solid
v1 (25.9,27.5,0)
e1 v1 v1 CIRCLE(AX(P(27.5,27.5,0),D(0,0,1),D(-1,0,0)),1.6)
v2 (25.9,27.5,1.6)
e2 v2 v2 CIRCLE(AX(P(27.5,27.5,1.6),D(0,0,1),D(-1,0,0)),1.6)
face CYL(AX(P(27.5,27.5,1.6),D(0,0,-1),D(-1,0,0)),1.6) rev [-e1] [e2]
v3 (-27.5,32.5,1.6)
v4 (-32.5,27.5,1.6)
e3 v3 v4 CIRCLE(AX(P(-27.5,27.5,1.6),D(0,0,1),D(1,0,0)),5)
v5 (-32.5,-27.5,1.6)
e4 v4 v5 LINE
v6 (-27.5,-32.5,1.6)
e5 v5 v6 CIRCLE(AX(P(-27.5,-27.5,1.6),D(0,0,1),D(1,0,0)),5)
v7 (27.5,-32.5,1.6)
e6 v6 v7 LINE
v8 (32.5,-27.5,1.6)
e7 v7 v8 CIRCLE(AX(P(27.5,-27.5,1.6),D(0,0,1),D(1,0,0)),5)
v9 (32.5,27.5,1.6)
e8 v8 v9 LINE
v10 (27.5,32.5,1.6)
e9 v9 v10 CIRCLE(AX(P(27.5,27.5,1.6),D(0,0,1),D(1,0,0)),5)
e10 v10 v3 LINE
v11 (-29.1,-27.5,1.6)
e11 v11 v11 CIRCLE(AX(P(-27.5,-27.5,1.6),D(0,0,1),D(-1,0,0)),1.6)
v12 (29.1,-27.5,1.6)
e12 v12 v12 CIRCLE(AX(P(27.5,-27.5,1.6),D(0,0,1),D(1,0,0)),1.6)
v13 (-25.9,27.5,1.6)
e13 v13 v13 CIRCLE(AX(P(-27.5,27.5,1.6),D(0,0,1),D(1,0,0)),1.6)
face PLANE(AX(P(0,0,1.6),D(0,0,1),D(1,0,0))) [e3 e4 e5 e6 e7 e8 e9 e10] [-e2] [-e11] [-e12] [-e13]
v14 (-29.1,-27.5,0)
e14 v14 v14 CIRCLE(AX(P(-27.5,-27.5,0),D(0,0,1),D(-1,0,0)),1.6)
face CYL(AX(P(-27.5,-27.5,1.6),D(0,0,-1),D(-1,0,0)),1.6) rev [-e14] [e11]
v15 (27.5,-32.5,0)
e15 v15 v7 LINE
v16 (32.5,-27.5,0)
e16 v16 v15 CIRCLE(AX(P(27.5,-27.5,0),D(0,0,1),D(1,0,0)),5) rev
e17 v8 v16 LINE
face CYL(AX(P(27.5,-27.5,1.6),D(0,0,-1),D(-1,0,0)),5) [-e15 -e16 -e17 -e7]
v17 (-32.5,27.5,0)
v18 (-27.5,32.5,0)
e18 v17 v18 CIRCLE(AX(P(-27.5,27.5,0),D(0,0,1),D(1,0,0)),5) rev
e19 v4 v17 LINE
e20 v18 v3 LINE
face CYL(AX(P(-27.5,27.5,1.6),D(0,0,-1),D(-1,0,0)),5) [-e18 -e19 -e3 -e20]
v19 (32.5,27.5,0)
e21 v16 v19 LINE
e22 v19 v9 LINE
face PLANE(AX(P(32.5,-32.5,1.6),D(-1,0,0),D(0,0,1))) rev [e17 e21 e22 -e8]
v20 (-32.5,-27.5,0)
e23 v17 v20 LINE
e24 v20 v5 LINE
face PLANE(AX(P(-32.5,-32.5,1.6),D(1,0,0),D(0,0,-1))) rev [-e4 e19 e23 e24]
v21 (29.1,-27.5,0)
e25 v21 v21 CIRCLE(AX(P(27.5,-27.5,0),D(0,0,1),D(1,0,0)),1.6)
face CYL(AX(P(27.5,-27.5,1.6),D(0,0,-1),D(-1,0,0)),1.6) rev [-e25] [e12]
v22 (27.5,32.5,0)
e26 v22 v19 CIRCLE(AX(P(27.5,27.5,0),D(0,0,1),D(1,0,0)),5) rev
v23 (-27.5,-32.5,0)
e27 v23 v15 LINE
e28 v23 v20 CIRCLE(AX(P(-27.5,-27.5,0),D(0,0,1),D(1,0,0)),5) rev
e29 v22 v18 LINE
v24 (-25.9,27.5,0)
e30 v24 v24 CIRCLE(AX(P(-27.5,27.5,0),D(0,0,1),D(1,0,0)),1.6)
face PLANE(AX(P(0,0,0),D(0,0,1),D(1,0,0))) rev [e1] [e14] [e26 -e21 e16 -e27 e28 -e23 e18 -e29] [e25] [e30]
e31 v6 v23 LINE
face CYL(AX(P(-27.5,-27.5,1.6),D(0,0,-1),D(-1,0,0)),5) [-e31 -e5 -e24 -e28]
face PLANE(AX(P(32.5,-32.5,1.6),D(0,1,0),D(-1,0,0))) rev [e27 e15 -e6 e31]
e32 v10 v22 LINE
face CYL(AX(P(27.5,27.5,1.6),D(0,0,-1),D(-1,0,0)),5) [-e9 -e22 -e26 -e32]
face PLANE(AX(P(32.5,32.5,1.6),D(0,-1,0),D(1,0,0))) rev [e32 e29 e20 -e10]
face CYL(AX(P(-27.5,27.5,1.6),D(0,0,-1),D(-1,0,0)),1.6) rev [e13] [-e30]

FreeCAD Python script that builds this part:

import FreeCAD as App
import Part
import Sketcher
Q = App.Units.Quantity


def edges_at(feature, points):
    """Names of the edges that pass closest to the given points."""
    edges = feature.Shape.Edges
    near = lambda p: min(range(len(edges)), key=lambda i: edges[i].distToShape(Part.Vertex(*p))[0])
    return sorted({f"Edge{near(p) + 1}" for p in points})

doc = App.newDocument("Part")
body = doc.addObject("PartDesign::Body", "Body")

# Sketch on XY plane
sketch1 = body.newObject("Sketcher::SketchObject", "Sketch")
sketch1.AttachmentSupport = (doc.getObject("XY_Plane"), [""])
sketch1.MapMode = "FlatFace"
sketch1.addGeometry([
    Part.LineSegment(App.Vector(-32.5, 32.5, 0), App.Vector(-32.5, -32.5, 0)),  # 0
    Part.LineSegment(App.Vector(-32.5, -32.5, 0), App.Vector(32.5, -32.5, 0)),  # 1
    Part.LineSegment(App.Vector(32.5, -32.5, 0), App.Vector(32.5, 32.5, 0)),  # 2
    Part.LineSegment(App.Vector(32.5, 32.5, 0), App.Vector(-32.5, 32.5, 0)),  # 3
    Part.Circle(App.Vector(-27.5, -27.5, 0), App.Vector(0, 0, 1), 1.6),  # 4
    Part.Circle(App.Vector(27.5, -27.5, 0), App.Vector(0, 0, 1), 1.6),  # 5
    Part.Circle(App.Vector(-27.5, 27.5, 0), App.Vector(0, 0, 1), 1.6),  # 6
    Part.Circle(App.Vector(27.5, 27.5, 0), App.Vector(0, 0, 1), 1.6),  # 7
], False)
sketch1.addConstraint([
    Sketcher.Constraint("Coincident", 0, 2, 1, 1),
    Sketcher.Constraint("Coincident", 1, 2, 2, 1),
    Sketcher.Constraint("Coincident", 2, 2, 3, 1),
    Sketcher.Constraint("Coincident", 3, 2, 0, 1),
    Sketcher.Constraint("Vertical", 0),
    Sketcher.Constraint("Horizontal", 1),
    Sketcher.Constraint("Vertical", 2),
    Sketcher.Constraint("Horizontal", 3),
    Sketcher.Constraint("Equal", 4, 5),
    Sketcher.Constraint("Equal", 5, 6),
    Sketcher.Constraint("Equal", 6, 7),
    Sketcher.Constraint("Symmetric", 5, 3, 6, 3, -1, 1),
    Sketcher.Constraint("Symmetric", 4, 3, 7, 3, -1, 1),
    Sketcher.Constraint("Symmetric", 0, 2, 2, 2, -1, 1),
    Sketcher.Constraint("Symmetric", 4, 3, 5, 3, -2),
    Sketcher.Constraint("Equal", 3, 0),
    Sketcher.Constraint("Diameter", 4, Q("3.2 mm")),
    Sketcher.Constraint("DistanceX", 1, 1, 1, 2, Q("65 mm")),
    Sketcher.Constraint("DistanceX", 4, 3, 5, 3, Q("55 mm")),
    Sketcher.Constraint("DistanceY", 4, 3, 6, 3, Q("55 mm")),
])
pad1 = body.newObject("PartDesign::Pad", "Pad")
pad1.Profile = sketch1
pad1.Length = 1.6
doc.recompute()

fillet = body.newObject("PartDesign::Fillet", "Fillet")
fillet.Base = (pad1, edges_at(pad1, [
    (-32.5, 32.5, 0.8),
    (32.5, 32.5, 0.8),
    (32.5, -32.5, 0.8),
    (-32.5, -32.5, 0.8),
]))
fillet.Radius = 5

doc.recompute()
